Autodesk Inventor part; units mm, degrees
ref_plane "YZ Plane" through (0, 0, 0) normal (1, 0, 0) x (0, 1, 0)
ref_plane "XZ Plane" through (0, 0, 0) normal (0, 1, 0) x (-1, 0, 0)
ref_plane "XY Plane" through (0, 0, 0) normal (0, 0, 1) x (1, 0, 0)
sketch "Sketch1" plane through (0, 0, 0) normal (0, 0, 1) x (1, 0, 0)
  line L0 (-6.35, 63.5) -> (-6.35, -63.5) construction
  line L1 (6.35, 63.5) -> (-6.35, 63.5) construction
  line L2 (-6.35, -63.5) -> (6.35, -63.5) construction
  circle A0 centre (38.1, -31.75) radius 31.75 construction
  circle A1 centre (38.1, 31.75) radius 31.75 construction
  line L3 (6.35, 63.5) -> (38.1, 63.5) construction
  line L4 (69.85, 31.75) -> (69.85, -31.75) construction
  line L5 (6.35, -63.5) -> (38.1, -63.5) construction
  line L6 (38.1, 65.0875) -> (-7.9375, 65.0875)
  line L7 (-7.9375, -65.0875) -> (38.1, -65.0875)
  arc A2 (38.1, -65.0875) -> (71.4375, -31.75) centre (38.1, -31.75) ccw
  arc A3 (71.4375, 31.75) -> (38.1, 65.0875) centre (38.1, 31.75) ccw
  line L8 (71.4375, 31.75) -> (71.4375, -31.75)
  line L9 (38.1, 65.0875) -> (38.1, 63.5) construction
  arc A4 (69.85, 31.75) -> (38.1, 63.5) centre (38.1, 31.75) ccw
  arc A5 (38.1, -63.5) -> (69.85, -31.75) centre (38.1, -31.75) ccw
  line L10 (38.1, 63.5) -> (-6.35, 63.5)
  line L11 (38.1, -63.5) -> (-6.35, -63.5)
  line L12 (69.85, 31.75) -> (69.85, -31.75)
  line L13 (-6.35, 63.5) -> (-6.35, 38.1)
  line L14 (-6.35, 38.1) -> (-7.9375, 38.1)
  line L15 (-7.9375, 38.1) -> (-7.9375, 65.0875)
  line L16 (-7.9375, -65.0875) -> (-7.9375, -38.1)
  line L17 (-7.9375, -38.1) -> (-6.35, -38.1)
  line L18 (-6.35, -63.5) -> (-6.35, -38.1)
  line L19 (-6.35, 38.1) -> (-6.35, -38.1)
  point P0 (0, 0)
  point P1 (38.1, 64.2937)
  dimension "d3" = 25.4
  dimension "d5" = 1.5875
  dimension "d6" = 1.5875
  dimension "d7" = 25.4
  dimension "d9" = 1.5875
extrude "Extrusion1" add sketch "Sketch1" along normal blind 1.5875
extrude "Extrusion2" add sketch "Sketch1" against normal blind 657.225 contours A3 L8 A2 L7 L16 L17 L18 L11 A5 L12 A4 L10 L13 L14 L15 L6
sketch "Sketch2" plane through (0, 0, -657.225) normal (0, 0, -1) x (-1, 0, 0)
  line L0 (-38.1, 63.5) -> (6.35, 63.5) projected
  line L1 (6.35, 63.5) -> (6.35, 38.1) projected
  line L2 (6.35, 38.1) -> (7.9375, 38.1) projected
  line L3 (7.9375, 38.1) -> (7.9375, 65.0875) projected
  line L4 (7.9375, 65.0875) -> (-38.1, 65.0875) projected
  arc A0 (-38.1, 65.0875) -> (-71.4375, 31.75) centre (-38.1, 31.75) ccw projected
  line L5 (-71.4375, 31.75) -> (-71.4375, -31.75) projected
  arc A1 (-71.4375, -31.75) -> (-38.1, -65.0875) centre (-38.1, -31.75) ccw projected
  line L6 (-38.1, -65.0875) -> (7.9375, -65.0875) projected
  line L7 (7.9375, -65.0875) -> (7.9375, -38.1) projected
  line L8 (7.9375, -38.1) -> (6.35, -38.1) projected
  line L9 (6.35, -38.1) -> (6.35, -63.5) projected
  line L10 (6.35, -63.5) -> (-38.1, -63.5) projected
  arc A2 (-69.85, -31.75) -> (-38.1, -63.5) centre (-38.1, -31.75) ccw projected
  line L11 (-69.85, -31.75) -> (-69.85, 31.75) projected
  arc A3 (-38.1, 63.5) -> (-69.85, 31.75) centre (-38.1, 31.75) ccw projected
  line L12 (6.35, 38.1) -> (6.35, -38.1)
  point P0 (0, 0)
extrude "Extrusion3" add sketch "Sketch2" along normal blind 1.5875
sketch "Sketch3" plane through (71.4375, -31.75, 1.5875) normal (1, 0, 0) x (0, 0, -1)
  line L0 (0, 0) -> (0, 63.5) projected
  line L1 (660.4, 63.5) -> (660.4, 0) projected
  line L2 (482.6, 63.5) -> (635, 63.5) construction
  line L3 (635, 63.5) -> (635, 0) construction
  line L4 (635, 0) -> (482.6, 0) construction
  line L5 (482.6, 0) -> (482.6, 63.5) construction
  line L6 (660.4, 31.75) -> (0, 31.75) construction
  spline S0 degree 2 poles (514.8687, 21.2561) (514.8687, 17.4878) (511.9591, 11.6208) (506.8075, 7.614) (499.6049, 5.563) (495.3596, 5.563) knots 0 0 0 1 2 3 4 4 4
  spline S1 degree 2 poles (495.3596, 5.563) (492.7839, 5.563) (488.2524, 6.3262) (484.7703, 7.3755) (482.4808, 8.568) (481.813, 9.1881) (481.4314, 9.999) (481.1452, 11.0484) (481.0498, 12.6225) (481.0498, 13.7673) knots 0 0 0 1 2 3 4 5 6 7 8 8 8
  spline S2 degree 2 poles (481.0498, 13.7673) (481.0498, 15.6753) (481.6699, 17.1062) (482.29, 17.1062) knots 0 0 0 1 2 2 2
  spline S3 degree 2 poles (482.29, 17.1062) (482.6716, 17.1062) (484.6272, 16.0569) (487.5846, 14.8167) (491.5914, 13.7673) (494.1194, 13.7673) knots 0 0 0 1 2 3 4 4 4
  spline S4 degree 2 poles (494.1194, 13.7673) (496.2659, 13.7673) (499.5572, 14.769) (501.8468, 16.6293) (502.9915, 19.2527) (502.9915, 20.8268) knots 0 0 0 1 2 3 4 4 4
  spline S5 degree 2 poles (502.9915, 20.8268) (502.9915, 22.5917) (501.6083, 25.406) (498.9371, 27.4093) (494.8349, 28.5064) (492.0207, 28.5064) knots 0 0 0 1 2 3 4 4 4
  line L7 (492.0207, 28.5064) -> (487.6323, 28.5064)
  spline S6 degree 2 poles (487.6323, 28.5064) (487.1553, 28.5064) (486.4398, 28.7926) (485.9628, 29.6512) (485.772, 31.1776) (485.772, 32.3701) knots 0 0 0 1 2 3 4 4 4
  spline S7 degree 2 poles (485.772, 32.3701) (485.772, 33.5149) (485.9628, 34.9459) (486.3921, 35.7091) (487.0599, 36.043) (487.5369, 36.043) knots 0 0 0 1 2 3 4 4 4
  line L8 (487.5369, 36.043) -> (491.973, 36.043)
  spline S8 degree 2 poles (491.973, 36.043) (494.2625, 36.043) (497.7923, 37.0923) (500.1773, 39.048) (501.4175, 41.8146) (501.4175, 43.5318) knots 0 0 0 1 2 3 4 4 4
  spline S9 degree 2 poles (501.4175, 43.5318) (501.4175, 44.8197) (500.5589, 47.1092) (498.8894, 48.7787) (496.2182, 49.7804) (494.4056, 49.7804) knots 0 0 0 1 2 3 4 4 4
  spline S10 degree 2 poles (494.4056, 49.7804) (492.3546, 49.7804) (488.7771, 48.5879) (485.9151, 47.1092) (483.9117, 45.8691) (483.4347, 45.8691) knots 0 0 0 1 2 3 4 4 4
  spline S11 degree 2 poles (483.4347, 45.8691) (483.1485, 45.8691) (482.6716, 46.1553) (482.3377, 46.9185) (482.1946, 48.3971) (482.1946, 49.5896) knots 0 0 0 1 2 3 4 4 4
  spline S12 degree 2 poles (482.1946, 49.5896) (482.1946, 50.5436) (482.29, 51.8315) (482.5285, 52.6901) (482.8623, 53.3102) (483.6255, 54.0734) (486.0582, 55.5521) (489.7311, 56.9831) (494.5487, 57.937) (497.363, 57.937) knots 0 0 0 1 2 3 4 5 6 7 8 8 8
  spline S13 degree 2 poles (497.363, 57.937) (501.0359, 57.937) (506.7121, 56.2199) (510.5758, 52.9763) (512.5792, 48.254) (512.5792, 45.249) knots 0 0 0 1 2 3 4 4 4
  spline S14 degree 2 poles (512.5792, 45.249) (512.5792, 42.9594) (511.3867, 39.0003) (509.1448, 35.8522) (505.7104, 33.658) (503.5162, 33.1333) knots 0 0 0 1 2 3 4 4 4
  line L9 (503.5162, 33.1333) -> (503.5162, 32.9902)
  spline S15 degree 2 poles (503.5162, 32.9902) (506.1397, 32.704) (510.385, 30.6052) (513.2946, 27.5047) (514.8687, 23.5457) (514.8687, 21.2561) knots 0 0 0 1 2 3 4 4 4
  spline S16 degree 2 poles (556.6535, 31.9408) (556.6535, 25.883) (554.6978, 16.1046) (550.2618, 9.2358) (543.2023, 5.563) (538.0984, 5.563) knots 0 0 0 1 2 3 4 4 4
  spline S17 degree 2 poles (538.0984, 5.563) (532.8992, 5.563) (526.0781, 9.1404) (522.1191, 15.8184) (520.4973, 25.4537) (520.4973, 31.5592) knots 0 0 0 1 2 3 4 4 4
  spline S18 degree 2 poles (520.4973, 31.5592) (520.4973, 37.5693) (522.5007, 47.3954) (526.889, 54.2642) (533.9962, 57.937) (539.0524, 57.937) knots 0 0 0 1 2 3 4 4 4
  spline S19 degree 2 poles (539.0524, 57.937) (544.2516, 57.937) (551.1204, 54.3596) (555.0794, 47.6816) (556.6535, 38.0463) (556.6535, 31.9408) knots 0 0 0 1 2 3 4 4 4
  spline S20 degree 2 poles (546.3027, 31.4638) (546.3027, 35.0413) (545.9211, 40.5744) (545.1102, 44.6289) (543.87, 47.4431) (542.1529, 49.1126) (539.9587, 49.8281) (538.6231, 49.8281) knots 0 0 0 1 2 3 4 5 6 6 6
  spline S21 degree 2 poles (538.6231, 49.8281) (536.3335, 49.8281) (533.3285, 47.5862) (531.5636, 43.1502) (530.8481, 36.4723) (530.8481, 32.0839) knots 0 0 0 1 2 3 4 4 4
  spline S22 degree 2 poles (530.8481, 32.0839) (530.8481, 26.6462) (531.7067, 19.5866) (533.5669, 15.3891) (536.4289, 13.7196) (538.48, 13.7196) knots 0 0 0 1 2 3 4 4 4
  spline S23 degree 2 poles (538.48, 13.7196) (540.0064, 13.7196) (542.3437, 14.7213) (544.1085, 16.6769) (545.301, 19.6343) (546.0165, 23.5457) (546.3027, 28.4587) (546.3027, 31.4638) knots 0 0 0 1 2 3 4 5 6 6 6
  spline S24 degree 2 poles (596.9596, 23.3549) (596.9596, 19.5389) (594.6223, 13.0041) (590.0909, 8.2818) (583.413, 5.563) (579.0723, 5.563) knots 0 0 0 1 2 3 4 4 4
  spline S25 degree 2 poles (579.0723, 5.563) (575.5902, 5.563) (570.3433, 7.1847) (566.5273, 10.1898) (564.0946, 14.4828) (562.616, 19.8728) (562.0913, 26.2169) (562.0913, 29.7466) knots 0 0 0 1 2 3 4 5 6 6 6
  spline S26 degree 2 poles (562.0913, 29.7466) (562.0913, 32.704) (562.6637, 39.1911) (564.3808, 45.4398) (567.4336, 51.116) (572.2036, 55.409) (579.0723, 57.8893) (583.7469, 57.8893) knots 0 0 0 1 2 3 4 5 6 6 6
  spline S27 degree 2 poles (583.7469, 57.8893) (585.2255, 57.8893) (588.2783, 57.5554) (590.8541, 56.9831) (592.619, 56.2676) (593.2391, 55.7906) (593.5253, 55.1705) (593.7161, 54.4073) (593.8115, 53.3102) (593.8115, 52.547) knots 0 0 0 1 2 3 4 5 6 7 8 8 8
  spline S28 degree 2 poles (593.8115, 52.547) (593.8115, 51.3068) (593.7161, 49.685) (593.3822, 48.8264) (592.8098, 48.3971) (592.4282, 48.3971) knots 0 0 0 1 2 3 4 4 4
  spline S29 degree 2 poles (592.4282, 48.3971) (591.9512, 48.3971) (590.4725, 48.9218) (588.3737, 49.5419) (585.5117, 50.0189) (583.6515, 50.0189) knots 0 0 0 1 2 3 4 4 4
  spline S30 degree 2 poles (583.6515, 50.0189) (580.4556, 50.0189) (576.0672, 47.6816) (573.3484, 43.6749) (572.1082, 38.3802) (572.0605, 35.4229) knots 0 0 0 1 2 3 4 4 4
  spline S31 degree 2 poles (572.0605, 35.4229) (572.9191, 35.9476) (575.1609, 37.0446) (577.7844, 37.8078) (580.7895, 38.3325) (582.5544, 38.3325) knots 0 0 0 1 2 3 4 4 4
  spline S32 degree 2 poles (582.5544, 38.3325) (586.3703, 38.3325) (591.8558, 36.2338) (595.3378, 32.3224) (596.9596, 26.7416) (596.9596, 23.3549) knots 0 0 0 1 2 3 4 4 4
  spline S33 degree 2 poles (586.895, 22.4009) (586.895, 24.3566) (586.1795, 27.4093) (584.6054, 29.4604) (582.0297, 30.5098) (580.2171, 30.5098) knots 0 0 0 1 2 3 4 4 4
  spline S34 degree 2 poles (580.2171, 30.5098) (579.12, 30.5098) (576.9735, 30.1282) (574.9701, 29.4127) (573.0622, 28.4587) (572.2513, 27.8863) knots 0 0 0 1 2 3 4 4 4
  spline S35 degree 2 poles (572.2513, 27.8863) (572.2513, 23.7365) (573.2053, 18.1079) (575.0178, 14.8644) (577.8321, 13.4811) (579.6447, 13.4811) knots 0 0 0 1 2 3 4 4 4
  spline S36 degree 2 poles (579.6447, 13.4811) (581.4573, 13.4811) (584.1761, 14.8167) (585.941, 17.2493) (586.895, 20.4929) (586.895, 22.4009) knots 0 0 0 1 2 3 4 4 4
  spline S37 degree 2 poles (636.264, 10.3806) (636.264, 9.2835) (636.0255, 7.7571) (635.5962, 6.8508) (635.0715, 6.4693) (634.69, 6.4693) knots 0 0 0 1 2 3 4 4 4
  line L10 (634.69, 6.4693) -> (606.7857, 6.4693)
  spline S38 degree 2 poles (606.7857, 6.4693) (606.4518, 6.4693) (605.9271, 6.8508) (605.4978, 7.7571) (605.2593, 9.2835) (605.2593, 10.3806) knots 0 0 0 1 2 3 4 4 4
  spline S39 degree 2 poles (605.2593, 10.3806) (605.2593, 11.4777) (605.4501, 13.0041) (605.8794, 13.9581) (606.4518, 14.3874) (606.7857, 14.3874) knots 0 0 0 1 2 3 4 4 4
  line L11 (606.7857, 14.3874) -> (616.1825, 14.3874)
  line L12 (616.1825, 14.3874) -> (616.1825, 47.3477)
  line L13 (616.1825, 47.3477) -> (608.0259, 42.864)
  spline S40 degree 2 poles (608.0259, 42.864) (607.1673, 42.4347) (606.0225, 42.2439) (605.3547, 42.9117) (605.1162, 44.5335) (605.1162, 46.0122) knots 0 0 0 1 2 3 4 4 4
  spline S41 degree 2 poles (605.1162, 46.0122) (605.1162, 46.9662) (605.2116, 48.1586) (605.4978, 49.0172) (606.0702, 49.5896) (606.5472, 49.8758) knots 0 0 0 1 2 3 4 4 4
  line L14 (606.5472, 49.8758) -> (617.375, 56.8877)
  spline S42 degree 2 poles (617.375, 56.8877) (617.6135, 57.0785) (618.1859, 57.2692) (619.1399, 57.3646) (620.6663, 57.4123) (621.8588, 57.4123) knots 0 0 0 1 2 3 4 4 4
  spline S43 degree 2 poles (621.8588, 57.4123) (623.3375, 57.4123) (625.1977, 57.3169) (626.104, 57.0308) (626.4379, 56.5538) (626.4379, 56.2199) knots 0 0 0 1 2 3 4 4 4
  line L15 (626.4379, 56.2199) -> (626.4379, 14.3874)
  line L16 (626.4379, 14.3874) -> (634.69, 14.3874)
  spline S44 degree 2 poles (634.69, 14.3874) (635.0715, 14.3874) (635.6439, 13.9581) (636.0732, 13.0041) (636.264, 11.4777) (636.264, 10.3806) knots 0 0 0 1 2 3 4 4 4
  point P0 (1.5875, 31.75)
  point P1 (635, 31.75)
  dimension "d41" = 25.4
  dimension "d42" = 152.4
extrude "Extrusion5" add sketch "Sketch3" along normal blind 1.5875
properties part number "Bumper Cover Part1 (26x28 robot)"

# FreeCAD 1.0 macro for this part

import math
import FreeCAD as App
import Part
import Sketcher
Q = App.Units.Quantity

doc = App.newDocument("Part")
body = doc.addObject("PartDesign::Body", "Body")

sketch1 = body.newObject("Sketcher::SketchObject", "Sketch")
sketch1.AttachmentSupport = (doc.getObject("XY_Plane"), [""])
sketch1.MapMode = "FlatFace"
sketch1.addGeometry(Part.ArcOfCircle(Part.Circle(App.Vector(38.1, 31.8, 0), App.Vector(0, 0, 1), 33.3), math.radians(0), math.radians(90)), False)
sketch1.addGeometry(Part.LineSegment(App.Vector(38.1, 65.1, 0), App.Vector(-7.9, 65.1, 0)), False)
sketch1.addGeometry(Part.LineSegment(App.Vector(-7.9, 65.1, 0), App.Vector(-7.9, 38.1, 0)), False)
sketch1.addGeometry(Part.LineSegment(App.Vector(-7.9, 38.1, 0), App.Vector(-6.3, 38.1, 0)), False)
sketch1.addGeometry(Part.LineSegment(App.Vector(-6.3, 38.1, 0), App.Vector(-6.3, -38.1, 0)), False)
sketch1.addGeometry(Part.LineSegment(App.Vector(-6.3, -38.1, 0), App.Vector(-7.9, -38.1, 0)), False)
sketch1.addGeometry(Part.LineSegment(App.Vector(-7.9, -38.1, 0), App.Vector(-7.9, -65.1, 0)), False)
sketch1.addGeometry(Part.LineSegment(App.Vector(-7.9, -65.1, 0), App.Vector(38.1, -65.1, 0)), False)
sketch1.addGeometry(Part.ArcOfCircle(Part.Circle(App.Vector(38.1, -31.8, 0), App.Vector(0, 0, 1), 33.3), math.radians(-90), math.radians(0)), False)
sketch1.addGeometry(Part.LineSegment(App.Vector(71.4, -31.8, 0), App.Vector(71.4, 31.8, 0)), False)
sketch1.addConstraint(Sketcher.Constraint("Tangent", 0, 2, 1, 1))
sketch1.addConstraint(Sketcher.Constraint("Coincident", 1, 2, 2, 1))
sketch1.addConstraint(Sketcher.Constraint("Coincident", 2, 2, 3, 1))
sketch1.addConstraint(Sketcher.Constraint("Coincident", 3, 2, 4, 1))
sketch1.addConstraint(Sketcher.Constraint("Coincident", 4, 2, 5, 1))
sketch1.addConstraint(Sketcher.Constraint("Coincident", 5, 2, 6, 1))
sketch1.addConstraint(Sketcher.Constraint("Coincident", 6, 2, 7, 1))
sketch1.addConstraint(Sketcher.Constraint("Tangent", 7, 2, 8, 1))
sketch1.addConstraint(Sketcher.Constraint("Tangent", 8, 2, 9, 1))
sketch1.addConstraint(Sketcher.Constraint("Tangent", 9, 2, 0, 1))
sketch1.addConstraint(Sketcher.Constraint("Horizontal", 1))
sketch1.addConstraint(Sketcher.Constraint("Vertical", 2))
sketch1.addConstraint(Sketcher.Constraint("Horizontal", 3))
sketch1.addConstraint(Sketcher.Constraint("Vertical", 4))
sketch1.addConstraint(Sketcher.Constraint("Horizontal", 5))
sketch1.addConstraint(Sketcher.Constraint("Vertical", 6))
sketch1.addConstraint(Sketcher.Constraint("Horizontal", 7))
sketch1.addConstraint(Sketcher.Constraint("Vertical", 9))
sketch1.addConstraint(Sketcher.Constraint("Equal", 0, 8))
sketch1.addConstraint(Sketcher.Constraint("Symmetric", 2, 2, 5, 2, -1))
sketch1.addConstraint(Sketcher.Constraint("Equal", 2, 6))
sketch1.addConstraint(Sketcher.Constraint("DistanceX", 3, 1, 3, 2, Q("0.0625 in")))
sketch1.addConstraint(Sketcher.Constraint("DistanceY", 4, 2, 4, 1, Q("3 in")))
sketch1.addConstraint(Sketcher.Constraint("DistanceY", 9, 1, 9, 2, Q("2.5 in")))
sketch1.addConstraint(Sketcher.Constraint("Radius", 0, Q("1.3125 in")))
sketch1.addConstraint(Sketcher.Constraint("DistanceX", -1, 1, 0, 3, Q("1.5 in")))
sketch1.addConstraint(Sketcher.Constraint("DistanceX", 1, 2, 1, 1, Q("1.8125 in")))
pad1 = body.newObject("PartDesign::Pad", "Pad")
pad1.Profile = sketch1
pad1.Length = Q("0.0625 in")

sketch2 = body.newObject("Sketcher::SketchObject", "Sketch001")
sketch2.AttachmentSupport = (doc.getObject("XY_Plane"), [""])
sketch2.MapMode = "FlatFace"
sketch2.addGeometry(Part.ArcOfCircle(Part.Circle(App.Vector(38.1, 31.8, 0), App.Vector(0, 0, 1), 33.3), math.radians(0), math.radians(90)), False)
sketch2.addGeometry(Part.LineSegment(App.Vector(38.1, 65.1, 0), App.Vector(-7.9, 65.1, 0)), False)
sketch2.addGeometry(Part.LineSegment(App.Vector(-7.9, 65.1, 0), App.Vector(-7.9, 38.1, 0)), False)
sketch2.addGeometry(Part.LineSegment(App.Vector(-7.9, 38.1, 0), App.Vector(-6.3, 38.1, 0)), False)
sketch2.addGeometry(Part.LineSegment(App.Vector(-6.3, 38.1, 0), App.Vector(-6.3, 63.5, 0)), False)
sketch2.addGeometry(Part.LineSegment(App.Vector(-6.3, 63.5, 0), App.Vector(38.1, 63.5, 0)), False)
sketch2.addGeometry(Part.ArcOfCircle(Part.Circle(App.Vector(38.1, 31.8, 0), App.Vector(0, 0, 1), 31.8), math.radians(0), math.radians(90)), False)
sketch2.addGeometry(Part.LineSegment(App.Vector(69.8, 31.8, 0), App.Vector(69.8, -31.8, 0)), False)
sketch2.addGeometry(Part.ArcOfCircle(Part.Circle(App.Vector(38.1, -31.8, 0), App.Vector(0, 0, 1), 31.8), math.radians(-90), math.radians(0)), False)
sketch2.addGeometry(Part.LineSegment(App.Vector(38.1, -63.5, 0), App.Vector(-6.3, -63.5, 0)), False)
sketch2.addGeometry(Part.LineSegment(App.Vector(-6.3, -63.5, 0), App.Vector(-6.3, -38.1, 0)), False)
sketch2.addGeometry(Part.LineSegment(App.Vector(-6.3, -38.1, 0), App.Vector(-7.9, -38.1, 0)), False)
sketch2.addGeometry(Part.LineSegment(App.Vector(-7.9, -38.1, 0), App.Vector(-7.9, -65.1, 0)), False)
sketch2.addGeometry(Part.LineSegment(App.Vector(-7.9, -65.1, 0), App.Vector(38.1, -65.1, 0)), False)
sketch2.addGeometry(Part.ArcOfCircle(Part.Circle(App.Vector(38.1, -31.8, 0), App.Vector(0, 0, 1), 33.3), math.radians(-90), math.radians(0)), False)
sketch2.addGeometry(Part.LineSegment(App.Vector(71.4, -31.8, 0), App.Vector(71.4, 31.8, 0)), False)
sketch2.addConstraint(Sketcher.Constraint("Tangent", 0, 2, 1, 1))
sketch2.addConstraint(Sketcher.Constraint("Coincident", 1, 2, 2, 1))
sketch2.addConstraint(Sketcher.Constraint("Coincident", 2, 2, 3, 1))
sketch2.addConstraint(Sketcher.Constraint("Coincident", 3, 2, 4, 1))
sketch2.addConstraint(Sketcher.Constraint("Coincident", 4, 2, 5, 1))
sketch2.addConstraint(Sketcher.Constraint("Tangent", 5, 2, 6, 2))
sketch2.addConstraint(Sketcher.Constraint("Tangent", 6, 1, 7, 1))
sketch2.addConstraint(Sketcher.Constraint("Tangent", 7, 2, 8, 2))
sketch2.addConstraint(Sketcher.Constraint("Tangent", 8, 1, 9, 1))
sketch2.addConstraint(Sketcher.Constraint("Coincident", 9, 2, 10, 1))
sketch2.addConstraint(Sketcher.Constraint("Coincident", 10, 2, 11, 1))
sketch2.addConstraint(Sketcher.Constraint("Coincident", 11, 2, 12, 1))
sketch2.addConstraint(Sketcher.Constraint("Coincident", 12, 2, 13, 1))
sketch2.addConstraint(Sketcher.Constraint("Tangent", 13, 2, 14, 1))
sketch2.addConstraint(Sketcher.Constraint("Tangent", 14, 2, 15, 1))
sketch2.addConstraint(Sketcher.Constraint("Tangent", 15, 2, 0, 1))
sketch2.addConstraint(Sketcher.Constraint("Horizontal", 1))
sketch2.addConstraint(Sketcher.Constraint("Vertical", 2))
sketch2.addConstraint(Sketcher.Constraint("Horizontal", 3))
sketch2.addConstraint(Sketcher.Constraint("Vertical", 4))
sketch2.addConstraint(Sketcher.Constraint("Horizontal", 5))
sketch2.addConstraint(Sketcher.Constraint("Vertical", 7))
sketch2.addConstraint(Sketcher.Constraint("Horizontal", 9))
sketch2.addConstraint(Sketcher.Constraint("Vertical", 10))
sketch2.addConstraint(Sketcher.Constraint("Horizontal", 11))
sketch2.addConstraint(Sketcher.Constraint("Vertical", 12))
sketch2.addConstraint(Sketcher.Constraint("Horizontal", 13))
sketch2.addConstraint(Sketcher.Constraint("Vertical", 15))
sketch2.addConstraint(Sketcher.Constraint("Coincident", 6, 3, 0, 3))
sketch2.addConstraint(Sketcher.Constraint("Coincident", 14, 3, 8, 3))
sketch2.addConstraint(Sketcher.Constraint("Equal", 6, 8))
sketch2.addConstraint(Sketcher.Constraint("Symmetric", 4, 2, 9, 2, -1))
sketch2.addConstraint(Sketcher.Constraint("Symmetric", 2, 2, 11, 2, -1))
sketch2.addConstraint(Sketcher.Constraint("DistanceY", 4, 1, 4, 2, Q("1 in")))
sketch2.addConstraint(Sketcher.Constraint("DistanceX", 3, 1, 3, 2, Q("0.0625 in")))
sketch2.addConstraint(Sketcher.Constraint("Radius", 6, Q("1.25 in")))
sketch2.addConstraint(Sketcher.Constraint("DistanceY", 7, 2, 7, 1, Q("2.5 in")))
sketch2.addConstraint(Sketcher.Constraint("Radius", 0, Q("1.3125 in")))
sketch2.addConstraint(Sketcher.Constraint("DistanceX", 9, 2, 7, 2, Q("3 in")))
sketch2.addConstraint(Sketcher.Constraint("DistanceX", -1, 1, 0, 3, Q("1.5 in")))
pad2 = body.newObject("PartDesign::Pad", "Pad001")
pad2.Profile = sketch2
pad2.Length = Q("25.875 in")
pad2.Reversed = True

sketch3 = body.newObject("Sketcher::SketchObject", "Sketch002")
sketch3.AttachmentSupport = (doc.getObject("XY_Plane"), [""])
sketch3.MapMode = "FlatFace"
sketch3.AttachmentOffset = App.Placement(App.Vector(0, 0, -25.875 * 25.4), App.Rotation())
sketch3.addGeometry(Part.LineSegment(App.Vector(-7.9, -38.1, 0), App.Vector(-6.3, -38.1, 0)), False)
sketch3.addGeometry(Part.LineSegment(App.Vector(-6.3, -38.1, 0), App.Vector(-6.3, 38.1, 0)), False)
sketch3.addGeometry(Part.LineSegment(App.Vector(-6.3, 38.1, 0), App.Vector(-7.9, 38.1, 0)), False)
sketch3.addGeometry(Part.LineSegment(App.Vector(-7.9, 38.1, 0), App.Vector(-7.9, 65.1, 0)), False)
sketch3.addGeometry(Part.LineSegment(App.Vector(-7.9, 65.1, 0), App.Vector(38.1, 65.1, 0)), False)
sketch3.addGeometry(Part.ArcOfCircle(Part.Circle(App.Vector(38.1, 31.8, 0), App.Vector(0, 0, 1), 33.3), math.radians(0), math.radians(90)), False)
sketch3.addGeometry(Part.LineSegment(App.Vector(71.4, 31.8, 0), App.Vector(71.4, -31.8, 0)), False)
sketch3.addGeometry(Part.ArcOfCircle(Part.Circle(App.Vector(38.1, -31.8, 0), App.Vector(0, 0, 1), 33.3), math.radians(-90), math.radians(0)), False)
sketch3.addGeometry(Part.LineSegment(App.Vector(38.1, -65.1, 0), App.Vector(-7.9, -65.1, 0)), False)
sketch3.addGeometry(Part.LineSegment(App.Vector(-7.9, -65.1, 0), App.Vector(-7.9, -38.1, 0)), False)
sketch3.addConstraint(Sketcher.Constraint("Coincident", 0, 2, 1, 1))
sketch3.addConstraint(Sketcher.Constraint("Coincident", 1, 2, 2, 1))
sketch3.addConstraint(Sketcher.Constraint("Coincident", 2, 2, 3, 1))
sketch3.addConstraint(Sketcher.Constraint("Coincident", 3, 2, 4, 1))
sketch3.addConstraint(Sketcher.Constraint("Tangent", 4, 2, 5, 2))
sketch3.addConstraint(Sketcher.Constraint("Tangent", 5, 1, 6, 1))
sketch3.addConstraint(Sketcher.Constraint("Tangent", 6, 2, 7, 2))
sketch3.addConstraint(Sketcher.Constraint("Tangent", 7, 1, 8, 1))
sketch3.addConstraint(Sketcher.Constraint("Coincident", 8, 2, 9, 1))
sketch3.addConstraint(Sketcher.Constraint("Coincident", 9, 2, 0, 1))
sketch3.addConstraint(Sketcher.Constraint("Horizontal", 0))
sketch3.addConstraint(Sketcher.Constraint("Vertical", 1))
sketch3.addConstraint(Sketcher.Constraint("Horizontal", 2))
sketch3.addConstraint(Sketcher.Constraint("Vertical", 3))
sketch3.addConstraint(Sketcher.Constraint("Horizontal", 4))
sketch3.addConstraint(Sketcher.Constraint("Vertical", 6))
sketch3.addConstraint(Sketcher.Constraint("Horizontal", 8))
sketch3.addConstraint(Sketcher.Constraint("Vertical", 9))
sketch3.addConstraint(Sketcher.Constraint("Equal", 5, 7))
sketch3.addConstraint(Sketcher.Constraint("Symmetric", 3, 2, 8, 2, -1))
sketch3.addConstraint(Sketcher.Constraint("Equal", 3, 9))
sketch3.addConstraint(Sketcher.Constraint("DistanceY", 1, 1, 1, 2, Q("3 in")))
sketch3.addConstraint(Sketcher.Constraint("DistanceY", 6, 2, 6, 1, Q("2.5 in")))
sketch3.addConstraint(Sketcher.Constraint("Radius", 5, Q("1.3125 in")))
sketch3.addConstraint(Sketcher.Constraint("DistanceX", -1, 1, 5, 3, Q("1.5 in")))
sketch3.addConstraint(Sketcher.Constraint("DistanceX", 0, 1, 0, 2, Q("0.0625 in")))
sketch3.addConstraint(Sketcher.Constraint("DistanceX", 4, 1, 4, 2, Q("1.8125 in")))
pad3 = body.newObject("PartDesign::Pad", "Pad002")
pad3.Profile = sketch3
pad3.Length = Q("0.0625 in")
pad3.Reversed = True

sketch4 = body.newObject("Sketcher::SketchObject", "Sketch003")
sketch4.AttachmentSupport = (doc.getObject("YZ_Plane"), [""])
sketch4.MapMode = "FlatFace"
sketch4.AttachmentOffset = App.Placement(App.Vector(0, 0, 2.8125 * 25.4), App.Rotation())
sketch4.addGeometry(Part.BSplineCurve([App.Vector(-10.4939, -513.2812, 0), App.Vector(-14.2622, -513.2812, 0), App.Vector(-20.1292, -510.3716, 0), App.Vector(-24.136, -505.22, 0), App.Vector(-26.187, -498.0174, 0), App.Vector(-26.187, -493.7721, 0)], [3, 1, 1, 1, 3], [0, 1, 2, 3, 4], False, 2, [1, 1, 1, 1, 1, 1], False), False)
sketch4.addGeometry(Part.BSplineCurve([App.Vector(1.2402, -501.9287, 0), App.Vector(0.954, -504.5522, 0), App.Vector(-1.1448, -508.7975, 0), App.Vector(-4.2453, -511.7071, 0), App.Vector(-8.2043, -513.2812, 0), App.Vector(-10.4939, -513.2812, 0)], [3, 1, 1, 1, 3], [0, 1, 2, 3, 4], False, 2, [1, 1, 1, 1, 1, 1], False), False)
sketch4.addGeometry(Part.LineSegment(App.Vector(1.2402, -501.9287, 0), App.Vector(1.3833, -501.9287, 0)), False)
sketch4.addGeometry(Part.BSplineCurve([App.Vector(13.499, -510.9917, 0), App.Vector(11.2094, -510.9917, 0), App.Vector(7.2503, -509.7992, 0), App.Vector(4.1022, -507.5573, 0), App.Vector(1.908, -504.1229, 0), App.Vector(1.3833, -501.9287, 0)], [3, 1, 1, 1, 3], [0, 1, 2, 3, 4], False, 2, [1, 1, 1, 1, 1, 1], False), False)
sketch4.addGeometry(Part.BSplineCurve([App.Vector(26.187, -495.7755, 0), App.Vector(26.187, -499.4484, 0), App.Vector(24.4699, -505.1246, 0), App.Vector(21.2263, -508.9883, 0), App.Vector(16.504, -510.9917, 0), App.Vector(13.499, -510.9917, 0)], [3, 1, 1, 1, 3], [0, 1, 2, 3, 4], False, 2, [1, 1, 1, 1, 1, 1], False), False)
sketch4.addGeometry(Part.BSplineCurve([App.Vector(17.8396, -480.6071, 0), App.Vector(18.7936, -480.6071, 0), App.Vector(20.0815, -480.7025, 0), App.Vector(20.9401, -480.941, 0), App.Vector(21.5602, -481.2748, 0), App.Vector(22.3234, -482.038, 0), App.Vector(23.8021, -484.4707, 0), App.Vector(25.2331, -488.1436, 0), App.Vector(26.187, -492.9612, 0), App.Vector(26.187, -495.7755, 0)], [3, 1, 1, 1, 1, 1, 1, 1, 3], [0, 1, 2, 3, 4, 5, 6, 7, 8], False, 2, [1, 1, 1, 1, 1, 1, 1, 1, 1, 1], False), False)
sketch4.addGeometry(Part.BSplineCurve([App.Vector(14.1191, -481.8472, 0), App.Vector(14.1191, -481.561, 0), App.Vector(14.4053, -481.0841, 0), App.Vector(15.1685, -480.7502, 0), App.Vector(16.6471, -480.6071, 0), App.Vector(17.8396, -480.6071, 0)], [3, 1, 1, 1, 3], [0, 1, 2, 3, 4], False, 2, [1, 1, 1, 1, 1, 1], False), False)
sketch4.addGeometry(Part.BSplineCurve([App.Vector(18.0304, -492.8181, 0), App.Vector(18.0304, -490.7671, 0), App.Vector(16.8379, -487.1896, 0), App.Vector(15.3592, -484.3276, 0), App.Vector(14.1191, -482.3242, 0), App.Vector(14.1191, -481.8472, 0)], [3, 1, 1, 1, 3], [0, 1, 2, 3, 4], False, 2, [1, 1, 1, 1, 1, 1], False), False)
sketch4.addGeometry(Part.BSplineCurve([App.Vector(11.7818, -499.83, 0), App.Vector(13.0697, -499.83, 0), App.Vector(15.3592, -498.9714, 0), App.Vector(17.0287, -497.3019, 0), App.Vector(18.0304, -494.6307, 0), App.Vector(18.0304, -492.8181, 0)], [3, 1, 1, 1, 3], [0, 1, 2, 3, 4], False, 2, [1, 1, 1, 1, 1, 1], False), False)
sketch4.addGeometry(Part.BSplineCurve([App.Vector(4.293, -490.3855, 0), App.Vector(4.293, -492.675, 0), App.Vector(5.3423, -496.2048, 0), App.Vector(7.298, -498.5898, 0), App.Vector(10.0646, -499.83, 0), App.Vector(11.7818, -499.83, 0)], [3, 1, 1, 1, 3], [0, 1, 2, 3, 4], False, 2, [1, 1, 1, 1, 1, 1], False), False)
sketch4.addGeometry(Part.LineSegment(App.Vector(4.293, -490.3855, 0), App.Vector(4.293, -485.9494, 0)), False)
sketch4.addGeometry(Part.BSplineCurve([App.Vector(0.6201, -484.1845, 0), App.Vector(1.7649, -484.1845, 0), App.Vector(3.1959, -484.3753, 0), App.Vector(3.9591, -484.8046, 0), App.Vector(4.293, -485.4724, 0), App.Vector(4.293, -485.9494, 0)], [3, 1, 1, 1, 3], [0, 1, 2, 3, 4], False, 2, [1, 1, 1, 1, 1, 1], False), False)
sketch4.addGeometry(Part.BSplineCurve([App.Vector(-3.2436, -486.0448, 0), App.Vector(-3.2436, -485.5678, 0), App.Vector(-2.9574, -484.8523, 0), App.Vector(-2.0988, -484.3753, 0), App.Vector(-0.5724, -484.1845, 0), App.Vector(0.6201, -484.1845, 0)], [3, 1, 1, 1, 3], [0, 1, 2, 3, 4], False, 2, [1, 1, 1, 1, 1, 1], False), False)
sketch4.addGeometry(Part.LineSegment(App.Vector(-3.2436, -486.0448, 0), App.Vector(-3.2436, -490.4332, 0)), False)
sketch4.addGeometry(Part.BSplineCurve([App.Vector(-10.9232, -501.404, 0), App.Vector(-9.1583, -501.404, 0), App.Vector(-6.344, -500.0208, 0), App.Vector(-4.3407, -497.3496, 0), App.Vector(-3.2436, -493.2474, 0), App.Vector(-3.2436, -490.4332, 0)], [3, 1, 1, 1, 3], [0, 1, 2, 3, 4], False, 2, [1, 1, 1, 1, 1, 1], False), False)
sketch4.addGeometry(Part.BSplineCurve([App.Vector(-17.9827, -492.5319, 0), App.Vector(-17.9827, -494.6784, 0), App.Vector(-16.981, -497.9697, 0), App.Vector(-15.1207, -500.2593, 0), App.Vector(-12.4973, -501.404, 0), App.Vector(-10.9232, -501.404, 0)], [3, 1, 1, 1, 3], [0, 1, 2, 3, 4], False, 2, [1, 1, 1, 1, 1, 1], False), False)
sketch4.addGeometry(Part.BSplineCurve([App.Vector(-14.6438, -480.7025, 0), App.Vector(-14.6438, -481.0841, 0), App.Vector(-15.6931, -483.0397, 0), App.Vector(-16.9333, -485.9971, 0), App.Vector(-17.9827, -490.0039, 0), App.Vector(-17.9827, -492.5319, 0)], [3, 1, 1, 1, 3], [0, 1, 2, 3, 4], False, 2, [1, 1, 1, 1, 1, 1], False), False)
sketch4.addGeometry(Part.BSplineCurve([App.Vector(-17.9827, -479.4623, 0), App.Vector(-16.0747, -479.4623, 0), App.Vector(-14.6438, -480.0824, 0), App.Vector(-14.6438, -480.7025, 0)], [3, 1, 3], [0, 1, 2], False, 2, [1, 1, 1, 1], False), False)
sketch4.addGeometry(Part.BSplineCurve([App.Vector(-26.187, -493.7721, 0), App.Vector(-26.187, -491.1964, 0), App.Vector(-25.4238, -486.6649, 0), App.Vector(-24.3745, -483.1828, 0), App.Vector(-23.182, -480.8933, 0), App.Vector(-22.5619, -480.2255, 0), App.Vector(-21.751, -479.8439, 0), App.Vector(-20.7016, -479.5577, 0), App.Vector(-19.1275, -479.4623, 0), App.Vector(-17.9827, -479.4623, 0)], [3, 1, 1, 1, 1, 1, 1, 1, 3], [0, 1, 2, 3, 4, 5, 6, 7, 8], False, 2, [1, 1, 1, 1, 1, 1, 1, 1, 1, 1], False), False)
sketch4.addGeometry(Part.BSplineCurve([App.Vector(0.1908, -555.066, 0), App.Vector(-5.867, -555.066, 0), App.Vector(-15.6454, -553.1103, 0), App.Vector(-22.5142, -548.6743, 0), App.Vector(-26.187, -541.6148, 0), App.Vector(-26.187, -536.5109, 0)], [3, 1, 1, 1, 3], [0, 1, 2, 3, 4], False, 2, [1, 1, 1, 1, 1, 1], False), False)
sketch4.addGeometry(Part.BSplineCurve([App.Vector(26.187, -537.4649, 0), App.Vector(26.187, -542.6641, 0), App.Vector(22.6096, -549.5329, 0), App.Vector(15.9316, -553.4919, 0), App.Vector(6.2963, -555.066, 0), App.Vector(0.1908, -555.066, 0)], [3, 1, 1, 1, 3], [0, 1, 2, 3, 4], False, 2, [1, 1, 1, 1, 1, 1], False), False)
sketch4.addGeometry(Part.BSplineCurve([App.Vector(-0.1908, -518.9098, 0), App.Vector(5.8193, -518.9098, 0), App.Vector(15.6454, -520.9132, 0), App.Vector(22.5142, -525.3015, 0), App.Vector(26.187, -532.4087, 0), App.Vector(26.187, -537.4649, 0)], [3, 1, 1, 1, 3], [0, 1, 2, 3, 4], False, 2, [1, 1, 1, 1, 1, 1], False), False)
sketch4.addGeometry(Part.BSplineCurve([App.Vector(-26.187, -536.5109, 0), App.Vector(-26.187, -531.3117, 0), App.Vector(-22.6096, -524.4906, 0), App.Vector(-15.9316, -520.5316, 0), App.Vector(-6.2963, -518.9098, 0), App.Vector(-0.1908, -518.9098, 0)], [3, 1, 1, 1, 3], [0, 1, 2, 3, 4], False, 2, [1, 1, 1, 1, 1, 1], False), False)
sketch4.addGeometry(Part.BSplineCurve([App.Vector(-0.2862, -544.7152, 0), App.Vector(3.2913, -544.7152, 0), App.Vector(8.8244, -544.3336, 0), App.Vector(12.8789, -543.5227, 0), App.Vector(15.6931, -542.2825, 0), App.Vector(17.3626, -540.5654, 0), App.Vector(18.0781, -538.3712, 0), App.Vector(18.0781, -537.0356, 0)], [3, 1, 1, 1, 1, 1, 3], [0, 1, 2, 3, 4, 5, 6], False, 2, [1, 1, 1, 1, 1, 1, 1, 1], False), False)
sketch4.addGeometry(Part.BSplineCurve([App.Vector(-18.0304, -536.8925, 0), App.Vector(-18.0304, -538.4189, 0), App.Vector(-17.0287, -540.7562, 0), App.Vector(-15.0731, -542.521, 0), App.Vector(-12.1157, -543.7135, 0), App.Vector(-8.2043, -544.429, 0), App.Vector(-3.2913, -544.7152, 0), App.Vector(-0.2862, -544.7152, 0)], [3, 1, 1, 1, 1, 1, 3], [0, 1, 2, 3, 4, 5, 6], False, 2, [1, 1, 1, 1, 1, 1, 1, 1], False), False)
sketch4.addGeometry(Part.BSplineCurve([App.Vector(0.3339, -529.2606, 0), App.Vector(-5.1038, -529.2606, 0), App.Vector(-12.1634, -530.1192, 0), App.Vector(-16.3609, -531.9794, 0), App.Vector(-18.0304, -534.8414, 0), App.Vector(-18.0304, -536.8925, 0)], [3, 1, 1, 1, 3], [0, 1, 2, 3, 4], False, 2, [1, 1, 1, 1, 1, 1], False), False)
sketch4.addGeometry(Part.BSplineCurve([App.Vector(18.0781, -537.0356, 0), App.Vector(18.0781, -534.746, 0), App.Vector(15.8362, -531.741, 0), App.Vector(11.4002, -529.9761, 0), App.Vector(4.7223, -529.2606, 0), App.Vector(0.3339, -529.2606, 0)], [3, 1, 1, 1, 3], [0, 1, 2, 3, 4], False, 2, [1, 1, 1, 1, 1, 1], False), False)
sketch4.addGeometry(Part.BSplineCurve([App.Vector(-8.3951, -595.3721, 0), App.Vector(-12.2111, -595.3721, 0), App.Vector(-18.7459, -593.0348, 0), App.Vector(-23.4682, -588.5034, 0), App.Vector(-26.187, -581.8255, 0), App.Vector(-26.187, -577.4848, 0)], [3, 1, 1, 1, 3], [0, 1, 2, 3, 4], False, 2, [1, 1, 1, 1, 1, 1], False), False)
sketch4.addGeometry(Part.BSplineCurve([App.Vector(6.5825, -580.9669, 0), App.Vector(6.5825, -584.7828, 0), App.Vector(4.4838, -590.2683, 0), App.Vector(0.5724, -593.7503, 0), App.Vector(-5.0084, -595.3721, 0), App.Vector(-8.3951, -595.3721, 0)], [3, 1, 1, 1, 3], [0, 1, 2, 3, 4], False, 2, [1, 1, 1, 1, 1, 1], False), False)
sketch4.addGeometry(Part.BSplineCurve([App.Vector(3.6729, -570.473, 0), App.Vector(4.1976, -571.3316, 0), App.Vector(5.2946, -573.5734, 0), App.Vector(6.0578, -576.1969, 0), App.Vector(6.5825, -579.202, 0), App.Vector(6.5825, -580.9669, 0)], [3, 1, 1, 1, 3], [0, 1, 2, 3, 4], False, 2, [1, 1, 1, 1, 1, 1], False), False)
sketch4.addGeometry(Part.BSplineCurve([App.Vector(18.2689, -582.064, 0), App.Vector(18.2689, -578.8681, 0), App.Vector(15.9316, -574.4797, 0), App.Vector(11.9249, -571.7609, 0), App.Vector(6.6302, -570.5207, 0), App.Vector(3.6729, -570.473, 0)], [3, 1, 1, 1, 3], [0, 1, 2, 3, 4], False, 2, [1, 1, 1, 1, 1, 1], False), False)
sketch4.addGeometry(Part.BSplineCurve([App.Vector(16.6471, -590.8407, 0), App.Vector(16.6471, -590.3637, 0), App.Vector(17.1718, -588.885, 0), App.Vector(17.7919, -586.7862, 0), App.Vector(18.2689, -583.9242, 0), App.Vector(18.2689, -582.064, 0)], [3, 1, 1, 1, 3], [0, 1, 2, 3, 4], False, 2, [1, 1, 1, 1, 1, 1], False), False)
sketch4.addGeometry(Part.BSplineCurve([App.Vector(20.797, -592.224, 0), App.Vector(19.5568, -592.224, 0), App.Vector(17.935, -592.1286, 0), App.Vector(17.0764, -591.7947, 0), App.Vector(16.6471, -591.2223, 0), App.Vector(16.6471, -590.8407, 0)], [3, 1, 1, 1, 3], [0, 1, 2, 3, 4], False, 2, [1, 1, 1, 1, 1, 1], False), False)
sketch4.addGeometry(Part.BSplineCurve([App.Vector(26.1393, -582.1594, 0), App.Vector(26.1393, -583.638, 0), App.Vector(25.8054, -586.6908, 0), App.Vector(25.2331, -589.2666, 0), App.Vector(24.5176, -591.0315, 0), App.Vector(24.0406, -591.6516, 0), App.Vector(23.4205, -591.9378, 0), App.Vector(22.6573, -592.1286, 0), App.Vector(21.5602, -592.224, 0), App.Vector(20.797, -592.224, 0)], [3, 1, 1, 1, 1, 1, 1, 1, 3], [0, 1, 2, 3, 4, 5, 6, 7, 8], False, 2, [1, 1, 1, 1, 1, 1, 1, 1, 1, 1], False), False)
sketch4.addGeometry(Part.BSplineCurve([App.Vector(-2.0034, -560.5038, 0), App.Vector(0.954, -560.5038, 0), App.Vector(7.4411, -561.0762, 0), App.Vector(13.6898, -562.7933, 0), App.Vector(19.366, -565.8461, 0), App.Vector(23.659, -570.6161, 0), App.Vector(26.1393, -577.4848, 0), App.Vector(26.1393, -582.1594, 0)], [3, 1, 1, 1, 1, 1, 3], [0, 1, 2, 3, 4, 5, 6], False, 2, [1, 1, 1, 1, 1, 1, 1, 1], False), False)
sketch4.addGeometry(Part.BSplineCurve([App.Vector(-26.187, -577.4848, 0), App.Vector(-26.187, -574.0027, 0), App.Vector(-24.5653, -568.7558, 0), App.Vector(-21.5602, -564.9398, 0), App.Vector(-17.2672, -562.5071, 0), App.Vector(-11.8772, -561.0285, 0), App.Vector(-5.5331, -560.5038, 0), App.Vector(-2.0034, -560.5038, 0)], [3, 1, 1, 1, 1, 1, 3], [0, 1, 2, 3, 4, 5, 6], False, 2, [1, 1, 1, 1, 1, 1, 1, 1], False), False)
sketch4.addGeometry(Part.BSplineCurve([App.Vector(-9.3491, -585.3075, 0), App.Vector(-7.3934, -585.3075, 0), App.Vector(-4.3407, -584.592, 0), App.Vector(-2.2896, -583.0179, 0), App.Vector(-1.2402, -580.4422, 0), App.Vector(-1.2402, -578.6296, 0)], [3, 1, 1, 1, 3], [0, 1, 2, 3, 4], False, 2, [1, 1, 1, 1, 1, 1], False), False)
sketch4.addGeometry(Part.BSplineCurve([App.Vector(-18.2689, -578.0572, 0), App.Vector(-18.2689, -579.8698, 0), App.Vector(-16.9333, -582.5886, 0), App.Vector(-14.5007, -584.3535, 0), App.Vector(-11.2571, -585.3075, 0), App.Vector(-9.3491, -585.3075, 0)], [3, 1, 1, 1, 3], [0, 1, 2, 3, 4], False, 2, [1, 1, 1, 1, 1, 1], False), False)
sketch4.addGeometry(Part.BSplineCurve([App.Vector(-3.8637, -570.6638, 0), App.Vector(-8.0135, -570.6638, 0), App.Vector(-13.6421, -571.6178, 0), App.Vector(-16.8856, -573.4303, 0), App.Vector(-18.2689, -576.2446, 0), App.Vector(-18.2689, -578.0572, 0)], [3, 1, 1, 1, 3], [0, 1, 2, 3, 4], False, 2, [1, 1, 1, 1, 1, 1], False), False)
sketch4.addGeometry(Part.BSplineCurve([App.Vector(-1.2402, -578.6296, 0), App.Vector(-1.2402, -577.5325, 0), App.Vector(-1.6218, -575.386, 0), App.Vector(-2.3373, -573.3826, 0), App.Vector(-3.2913, -571.4747, 0), App.Vector(-3.8637, -570.6638, 0)], [3, 1, 1, 1, 3], [0, 1, 2, 3, 4], False, 2, [1, 1, 1, 1, 1, 1], False), False)
sketch4.addGeometry(Part.BSplineCurve([App.Vector(-21.3694, -634.6765, 0), App.Vector(-22.4665, -634.6765, 0), App.Vector(-23.9929, -634.438, 0), App.Vector(-24.8992, -634.0087, 0), App.Vector(-25.2807, -633.484, 0), App.Vector(-25.2807, -633.1025, 0)], [3, 1, 1, 1, 3], [0, 1, 2, 3, 4], False, 2, [1, 1, 1, 1, 1, 1], False), False)
sketch4.addGeometry(Part.BSplineCurve([App.Vector(-17.3626, -633.1025, 0), App.Vector(-17.3626, -633.484, 0), App.Vector(-17.7919, -634.0564, 0), App.Vector(-18.7459, -634.4857, 0), App.Vector(-20.2723, -634.6765, 0), App.Vector(-21.3694, -634.6765, 0)], [3, 1, 1, 1, 3], [0, 1, 2, 3, 4], False, 2, [1, 1, 1, 1, 1, 1], False), False)
sketch4.addGeometry(Part.LineSegment(App.Vector(-17.3626, -633.1025, 0), App.Vector(-17.3626, -624.8504, 0)), False)
sketch4.addGeometry(Part.LineSegment(App.Vector(-17.3626, -624.8504, 0), App.Vector(24.4699, -624.8504, 0)), False)
sketch4.addGeometry(Part.BSplineCurve([App.Vector(25.6623, -620.2713, 0), App.Vector(25.6623, -621.75, 0), App.Vector(25.5669, -623.6102, 0), App.Vector(25.2808, -624.5165, 0), App.Vector(24.8038, -624.8504, 0), App.Vector(24.4699, -624.8504, 0)], [3, 1, 1, 1, 3], [0, 1, 2, 3, 4], False, 2, [1, 1, 1, 1, 1, 1], False), False)
sketch4.addGeometry(Part.BSplineCurve([App.Vector(25.1377, -615.7875, 0), App.Vector(25.3285, -616.026, 0), App.Vector(25.5192, -616.5984, 0), App.Vector(25.6146, -617.5524, 0), App.Vector(25.6623, -619.0788, 0), App.Vector(25.6623, -620.2713, 0)], [3, 1, 1, 1, 3], [0, 1, 2, 3, 4], False, 2, [1, 1, 1, 1, 1, 1], False), False)
sketch4.addGeometry(Part.LineSegment(App.Vector(25.1377, -615.7875, 0), App.Vector(18.1258, -604.9597, 0)), False)
sketch4.addGeometry(Part.BSplineCurve([App.Vector(14.2622, -603.5287, 0), App.Vector(15.2162, -603.5287, 0), App.Vector(16.4086, -603.6241, 0), App.Vector(17.2672, -603.9103, 0), App.Vector(17.8396, -604.4827, 0), App.Vector(18.1258, -604.9597, 0)], [3, 1, 1, 1, 3], [0, 1, 2, 3, 4], False, 2, [1, 1, 1, 1, 1, 1], False), False)
sketch4.addGeometry(Part.BSplineCurve([App.Vector(11.114, -606.4384, 0), App.Vector(10.6847, -605.5798, 0), App.Vector(10.4939, -604.435, 0), App.Vector(11.1617, -603.7672, 0), App.Vector(12.7835, -603.5287, 0), App.Vector(14.2622, -603.5287, 0)], [3, 1, 1, 1, 3], [0, 1, 2, 3, 4], False, 2, [1, 1, 1, 1, 1, 1], False), False)
sketch4.addGeometry(Part.LineSegment(App.Vector(11.114, -606.4384, 0), App.Vector(15.5977, -614.595, 0)), False)
sketch4.addGeometry(Part.LineSegment(App.Vector(15.5977, -614.595, 0), App.Vector(-17.3626, -614.595, 0)), False)
sketch4.addGeometry(Part.LineSegment(App.Vector(-17.3626, -614.595, 0), App.Vector(-17.3626, -605.1982, 0)), False)
sketch4.addGeometry(Part.BSplineCurve([App.Vector(-21.3694, -603.6718, 0), App.Vector(-20.2723, -603.6718, 0), App.Vector(-18.7459, -603.8626, 0), App.Vector(-17.7919, -604.2919, 0), App.Vector(-17.3626, -604.8643, 0), App.Vector(-17.3626, -605.1982, 0)], [3, 1, 1, 1, 3], [0, 1, 2, 3, 4], False, 2, [1, 1, 1, 1, 1, 1], False), False)
sketch4.addGeometry(Part.BSplineCurve([App.Vector(-25.2807, -605.1982, 0), App.Vector(-25.2807, -604.8643, 0), App.Vector(-24.8992, -604.3396, 0), App.Vector(-23.9929, -603.9103, 0), App.Vector(-22.4665, -603.6718, 0), App.Vector(-21.3694, -603.6718, 0)], [3, 1, 1, 1, 3], [0, 1, 2, 3, 4], False, 2, [1, 1, 1, 1, 1, 1], False), False)
sketch4.addGeometry(Part.LineSegment(App.Vector(-25.2807, -605.1982, 0), App.Vector(-25.2807, -633.1025, 0)), False)
sketch4.addConstraint(Sketcher.Constraint("Block", 0))
sketch4.addConstraint(Sketcher.Constraint("Block", 1))
sketch4.addConstraint(Sketcher.Constraint("Block", 3))
sketch4.addConstraint(Sketcher.Constraint("Block", 4))
sketch4.addConstraint(Sketcher.Constraint("Block", 5))
sketch4.addConstraint(Sketcher.Constraint("Block", 6))
sketch4.addConstraint(Sketcher.Constraint("Block", 7))
sketch4.addConstraint(Sketcher.Constraint("Block", 8))
sketch4.addConstraint(Sketcher.Constraint("Block", 9))
sketch4.addConstraint(Sketcher.Constraint("Block", 11))
sketch4.addConstraint(Sketcher.Constraint("Block", 12))
sketch4.addConstraint(Sketcher.Constraint("Block", 14))
sketch4.addConstraint(Sketcher.Constraint("Block", 15))
sketch4.addConstraint(Sketcher.Constraint("Block", 16))
sketch4.addConstraint(Sketcher.Constraint("Block", 17))
sketch4.addConstraint(Sketcher.Constraint("Block", 18))
sketch4.addConstraint(Sketcher.Constraint("Block", 19))
sketch4.addConstraint(Sketcher.Constraint("Block", 20))
sketch4.addConstraint(Sketcher.Constraint("Block", 21))
sketch4.addConstraint(Sketcher.Constraint("Block", 22))
sketch4.addConstraint(Sketcher.Constraint("Block", 23))
sketch4.addConstraint(Sketcher.Constraint("Block", 24))
sketch4.addConstraint(Sketcher.Constraint("Block", 25))
sketch4.addConstraint(Sketcher.Constraint("Block", 26))
sketch4.addConstraint(Sketcher.Constraint("Block", 27))
sketch4.addConstraint(Sketcher.Constraint("Block", 28))
sketch4.addConstraint(Sketcher.Constraint("Block", 29))
sketch4.addConstraint(Sketcher.Constraint("Block", 30))
sketch4.addConstraint(Sketcher.Constraint("Block", 31))
sketch4.addConstraint(Sketcher.Constraint("Block", 32))
sketch4.addConstraint(Sketcher.Constraint("Block", 33))
sketch4.addConstraint(Sketcher.Constraint("Block", 34))
sketch4.addConstraint(Sketcher.Constraint("Block", 35))
sketch4.addConstraint(Sketcher.Constraint("Block", 36))
sketch4.addConstraint(Sketcher.Constraint("Block", 37))
sketch4.addConstraint(Sketcher.Constraint("Block", 38))
sketch4.addConstraint(Sketcher.Constraint("Block", 39))
sketch4.addConstraint(Sketcher.Constraint("Block", 40))
sketch4.addConstraint(Sketcher.Constraint("Block", 41))
sketch4.addConstraint(Sketcher.Constraint("Block", 44))
sketch4.addConstraint(Sketcher.Constraint("Block", 45))
sketch4.addConstraint(Sketcher.Constraint("Block", 47))
sketch4.addConstraint(Sketcher.Constraint("Block", 48))
sketch4.addConstraint(Sketcher.Constraint("Block", 52))
sketch4.addConstraint(Sketcher.Constraint("Block", 53))
sketch4.addConstraint(Sketcher.Constraint("Coincident", 1, 1, 2, 1))
sketch4.addConstraint(Sketcher.Constraint("Coincident", 2, 2, 3, 2))
sketch4.addConstraint(Sketcher.Constraint("Coincident", 9, 1, 10, 1))
sketch4.addConstraint(Sketcher.Constraint("Coincident", 10, 2, 11, 2))
sketch4.addConstraint(Sketcher.Constraint("Coincident", 12, 1, 13, 1))
sketch4.addConstraint(Sketcher.Constraint("Coincident", 13, 2, 14, 2))
sketch4.addConstraint(Sketcher.Constraint("Coincident", 41, 1, 42, 1))
sketch4.addConstraint(Sketcher.Constraint("Coincident", 42, 2, 43, 1))
sketch4.addConstraint(Sketcher.Constraint("Coincident", 43, 2, 44, 2))
sketch4.addConstraint(Sketcher.Constraint("Coincident", 45, 1, 46, 1))
sketch4.addConstraint(Sketcher.Constraint("Coincident", 46, 2, 47, 2))
sketch4.addConstraint(Sketcher.Constraint("Coincident", 48, 1, 49, 1))
sketch4.addConstraint(Sketcher.Constraint("Coincident", 49, 2, 50, 1))
sketch4.addConstraint(Sketcher.Constraint("Coincident", 50, 2, 51, 1))
sketch4.addConstraint(Sketcher.Constraint("Coincident", 51, 2, 52, 2))
sketch4.addConstraint(Sketcher.Constraint("Coincident", 53, 1, 54, 1))
sketch4.addConstraint(Sketcher.Constraint("Coincident", 54, 2, 40, 2))
sketch4.addConstraint(Sketcher.Constraint("Vertical", 42))
sketch4.addConstraint(Sketcher.Constraint("Horizontal", 43))
sketch4.addConstraint(Sketcher.Constraint("Horizontal", 50))
sketch4.addConstraint(Sketcher.Constraint("Vertical", 51))
sketch4.addConstraint(Sketcher.Constraint("DistanceX", 50, 2, 50, 1, Q("32.9603 mm")))
sketch4.addConstraint(Sketcher.Constraint("DistanceY", 51, 1, 51, 2, Q("9.3968 mm")))
pad4 = body.newObject("PartDesign::Pad", "Pad003")
pad4.Profile = sketch4
pad4.Length = Q("0.0625 in")

doc.recompute()
